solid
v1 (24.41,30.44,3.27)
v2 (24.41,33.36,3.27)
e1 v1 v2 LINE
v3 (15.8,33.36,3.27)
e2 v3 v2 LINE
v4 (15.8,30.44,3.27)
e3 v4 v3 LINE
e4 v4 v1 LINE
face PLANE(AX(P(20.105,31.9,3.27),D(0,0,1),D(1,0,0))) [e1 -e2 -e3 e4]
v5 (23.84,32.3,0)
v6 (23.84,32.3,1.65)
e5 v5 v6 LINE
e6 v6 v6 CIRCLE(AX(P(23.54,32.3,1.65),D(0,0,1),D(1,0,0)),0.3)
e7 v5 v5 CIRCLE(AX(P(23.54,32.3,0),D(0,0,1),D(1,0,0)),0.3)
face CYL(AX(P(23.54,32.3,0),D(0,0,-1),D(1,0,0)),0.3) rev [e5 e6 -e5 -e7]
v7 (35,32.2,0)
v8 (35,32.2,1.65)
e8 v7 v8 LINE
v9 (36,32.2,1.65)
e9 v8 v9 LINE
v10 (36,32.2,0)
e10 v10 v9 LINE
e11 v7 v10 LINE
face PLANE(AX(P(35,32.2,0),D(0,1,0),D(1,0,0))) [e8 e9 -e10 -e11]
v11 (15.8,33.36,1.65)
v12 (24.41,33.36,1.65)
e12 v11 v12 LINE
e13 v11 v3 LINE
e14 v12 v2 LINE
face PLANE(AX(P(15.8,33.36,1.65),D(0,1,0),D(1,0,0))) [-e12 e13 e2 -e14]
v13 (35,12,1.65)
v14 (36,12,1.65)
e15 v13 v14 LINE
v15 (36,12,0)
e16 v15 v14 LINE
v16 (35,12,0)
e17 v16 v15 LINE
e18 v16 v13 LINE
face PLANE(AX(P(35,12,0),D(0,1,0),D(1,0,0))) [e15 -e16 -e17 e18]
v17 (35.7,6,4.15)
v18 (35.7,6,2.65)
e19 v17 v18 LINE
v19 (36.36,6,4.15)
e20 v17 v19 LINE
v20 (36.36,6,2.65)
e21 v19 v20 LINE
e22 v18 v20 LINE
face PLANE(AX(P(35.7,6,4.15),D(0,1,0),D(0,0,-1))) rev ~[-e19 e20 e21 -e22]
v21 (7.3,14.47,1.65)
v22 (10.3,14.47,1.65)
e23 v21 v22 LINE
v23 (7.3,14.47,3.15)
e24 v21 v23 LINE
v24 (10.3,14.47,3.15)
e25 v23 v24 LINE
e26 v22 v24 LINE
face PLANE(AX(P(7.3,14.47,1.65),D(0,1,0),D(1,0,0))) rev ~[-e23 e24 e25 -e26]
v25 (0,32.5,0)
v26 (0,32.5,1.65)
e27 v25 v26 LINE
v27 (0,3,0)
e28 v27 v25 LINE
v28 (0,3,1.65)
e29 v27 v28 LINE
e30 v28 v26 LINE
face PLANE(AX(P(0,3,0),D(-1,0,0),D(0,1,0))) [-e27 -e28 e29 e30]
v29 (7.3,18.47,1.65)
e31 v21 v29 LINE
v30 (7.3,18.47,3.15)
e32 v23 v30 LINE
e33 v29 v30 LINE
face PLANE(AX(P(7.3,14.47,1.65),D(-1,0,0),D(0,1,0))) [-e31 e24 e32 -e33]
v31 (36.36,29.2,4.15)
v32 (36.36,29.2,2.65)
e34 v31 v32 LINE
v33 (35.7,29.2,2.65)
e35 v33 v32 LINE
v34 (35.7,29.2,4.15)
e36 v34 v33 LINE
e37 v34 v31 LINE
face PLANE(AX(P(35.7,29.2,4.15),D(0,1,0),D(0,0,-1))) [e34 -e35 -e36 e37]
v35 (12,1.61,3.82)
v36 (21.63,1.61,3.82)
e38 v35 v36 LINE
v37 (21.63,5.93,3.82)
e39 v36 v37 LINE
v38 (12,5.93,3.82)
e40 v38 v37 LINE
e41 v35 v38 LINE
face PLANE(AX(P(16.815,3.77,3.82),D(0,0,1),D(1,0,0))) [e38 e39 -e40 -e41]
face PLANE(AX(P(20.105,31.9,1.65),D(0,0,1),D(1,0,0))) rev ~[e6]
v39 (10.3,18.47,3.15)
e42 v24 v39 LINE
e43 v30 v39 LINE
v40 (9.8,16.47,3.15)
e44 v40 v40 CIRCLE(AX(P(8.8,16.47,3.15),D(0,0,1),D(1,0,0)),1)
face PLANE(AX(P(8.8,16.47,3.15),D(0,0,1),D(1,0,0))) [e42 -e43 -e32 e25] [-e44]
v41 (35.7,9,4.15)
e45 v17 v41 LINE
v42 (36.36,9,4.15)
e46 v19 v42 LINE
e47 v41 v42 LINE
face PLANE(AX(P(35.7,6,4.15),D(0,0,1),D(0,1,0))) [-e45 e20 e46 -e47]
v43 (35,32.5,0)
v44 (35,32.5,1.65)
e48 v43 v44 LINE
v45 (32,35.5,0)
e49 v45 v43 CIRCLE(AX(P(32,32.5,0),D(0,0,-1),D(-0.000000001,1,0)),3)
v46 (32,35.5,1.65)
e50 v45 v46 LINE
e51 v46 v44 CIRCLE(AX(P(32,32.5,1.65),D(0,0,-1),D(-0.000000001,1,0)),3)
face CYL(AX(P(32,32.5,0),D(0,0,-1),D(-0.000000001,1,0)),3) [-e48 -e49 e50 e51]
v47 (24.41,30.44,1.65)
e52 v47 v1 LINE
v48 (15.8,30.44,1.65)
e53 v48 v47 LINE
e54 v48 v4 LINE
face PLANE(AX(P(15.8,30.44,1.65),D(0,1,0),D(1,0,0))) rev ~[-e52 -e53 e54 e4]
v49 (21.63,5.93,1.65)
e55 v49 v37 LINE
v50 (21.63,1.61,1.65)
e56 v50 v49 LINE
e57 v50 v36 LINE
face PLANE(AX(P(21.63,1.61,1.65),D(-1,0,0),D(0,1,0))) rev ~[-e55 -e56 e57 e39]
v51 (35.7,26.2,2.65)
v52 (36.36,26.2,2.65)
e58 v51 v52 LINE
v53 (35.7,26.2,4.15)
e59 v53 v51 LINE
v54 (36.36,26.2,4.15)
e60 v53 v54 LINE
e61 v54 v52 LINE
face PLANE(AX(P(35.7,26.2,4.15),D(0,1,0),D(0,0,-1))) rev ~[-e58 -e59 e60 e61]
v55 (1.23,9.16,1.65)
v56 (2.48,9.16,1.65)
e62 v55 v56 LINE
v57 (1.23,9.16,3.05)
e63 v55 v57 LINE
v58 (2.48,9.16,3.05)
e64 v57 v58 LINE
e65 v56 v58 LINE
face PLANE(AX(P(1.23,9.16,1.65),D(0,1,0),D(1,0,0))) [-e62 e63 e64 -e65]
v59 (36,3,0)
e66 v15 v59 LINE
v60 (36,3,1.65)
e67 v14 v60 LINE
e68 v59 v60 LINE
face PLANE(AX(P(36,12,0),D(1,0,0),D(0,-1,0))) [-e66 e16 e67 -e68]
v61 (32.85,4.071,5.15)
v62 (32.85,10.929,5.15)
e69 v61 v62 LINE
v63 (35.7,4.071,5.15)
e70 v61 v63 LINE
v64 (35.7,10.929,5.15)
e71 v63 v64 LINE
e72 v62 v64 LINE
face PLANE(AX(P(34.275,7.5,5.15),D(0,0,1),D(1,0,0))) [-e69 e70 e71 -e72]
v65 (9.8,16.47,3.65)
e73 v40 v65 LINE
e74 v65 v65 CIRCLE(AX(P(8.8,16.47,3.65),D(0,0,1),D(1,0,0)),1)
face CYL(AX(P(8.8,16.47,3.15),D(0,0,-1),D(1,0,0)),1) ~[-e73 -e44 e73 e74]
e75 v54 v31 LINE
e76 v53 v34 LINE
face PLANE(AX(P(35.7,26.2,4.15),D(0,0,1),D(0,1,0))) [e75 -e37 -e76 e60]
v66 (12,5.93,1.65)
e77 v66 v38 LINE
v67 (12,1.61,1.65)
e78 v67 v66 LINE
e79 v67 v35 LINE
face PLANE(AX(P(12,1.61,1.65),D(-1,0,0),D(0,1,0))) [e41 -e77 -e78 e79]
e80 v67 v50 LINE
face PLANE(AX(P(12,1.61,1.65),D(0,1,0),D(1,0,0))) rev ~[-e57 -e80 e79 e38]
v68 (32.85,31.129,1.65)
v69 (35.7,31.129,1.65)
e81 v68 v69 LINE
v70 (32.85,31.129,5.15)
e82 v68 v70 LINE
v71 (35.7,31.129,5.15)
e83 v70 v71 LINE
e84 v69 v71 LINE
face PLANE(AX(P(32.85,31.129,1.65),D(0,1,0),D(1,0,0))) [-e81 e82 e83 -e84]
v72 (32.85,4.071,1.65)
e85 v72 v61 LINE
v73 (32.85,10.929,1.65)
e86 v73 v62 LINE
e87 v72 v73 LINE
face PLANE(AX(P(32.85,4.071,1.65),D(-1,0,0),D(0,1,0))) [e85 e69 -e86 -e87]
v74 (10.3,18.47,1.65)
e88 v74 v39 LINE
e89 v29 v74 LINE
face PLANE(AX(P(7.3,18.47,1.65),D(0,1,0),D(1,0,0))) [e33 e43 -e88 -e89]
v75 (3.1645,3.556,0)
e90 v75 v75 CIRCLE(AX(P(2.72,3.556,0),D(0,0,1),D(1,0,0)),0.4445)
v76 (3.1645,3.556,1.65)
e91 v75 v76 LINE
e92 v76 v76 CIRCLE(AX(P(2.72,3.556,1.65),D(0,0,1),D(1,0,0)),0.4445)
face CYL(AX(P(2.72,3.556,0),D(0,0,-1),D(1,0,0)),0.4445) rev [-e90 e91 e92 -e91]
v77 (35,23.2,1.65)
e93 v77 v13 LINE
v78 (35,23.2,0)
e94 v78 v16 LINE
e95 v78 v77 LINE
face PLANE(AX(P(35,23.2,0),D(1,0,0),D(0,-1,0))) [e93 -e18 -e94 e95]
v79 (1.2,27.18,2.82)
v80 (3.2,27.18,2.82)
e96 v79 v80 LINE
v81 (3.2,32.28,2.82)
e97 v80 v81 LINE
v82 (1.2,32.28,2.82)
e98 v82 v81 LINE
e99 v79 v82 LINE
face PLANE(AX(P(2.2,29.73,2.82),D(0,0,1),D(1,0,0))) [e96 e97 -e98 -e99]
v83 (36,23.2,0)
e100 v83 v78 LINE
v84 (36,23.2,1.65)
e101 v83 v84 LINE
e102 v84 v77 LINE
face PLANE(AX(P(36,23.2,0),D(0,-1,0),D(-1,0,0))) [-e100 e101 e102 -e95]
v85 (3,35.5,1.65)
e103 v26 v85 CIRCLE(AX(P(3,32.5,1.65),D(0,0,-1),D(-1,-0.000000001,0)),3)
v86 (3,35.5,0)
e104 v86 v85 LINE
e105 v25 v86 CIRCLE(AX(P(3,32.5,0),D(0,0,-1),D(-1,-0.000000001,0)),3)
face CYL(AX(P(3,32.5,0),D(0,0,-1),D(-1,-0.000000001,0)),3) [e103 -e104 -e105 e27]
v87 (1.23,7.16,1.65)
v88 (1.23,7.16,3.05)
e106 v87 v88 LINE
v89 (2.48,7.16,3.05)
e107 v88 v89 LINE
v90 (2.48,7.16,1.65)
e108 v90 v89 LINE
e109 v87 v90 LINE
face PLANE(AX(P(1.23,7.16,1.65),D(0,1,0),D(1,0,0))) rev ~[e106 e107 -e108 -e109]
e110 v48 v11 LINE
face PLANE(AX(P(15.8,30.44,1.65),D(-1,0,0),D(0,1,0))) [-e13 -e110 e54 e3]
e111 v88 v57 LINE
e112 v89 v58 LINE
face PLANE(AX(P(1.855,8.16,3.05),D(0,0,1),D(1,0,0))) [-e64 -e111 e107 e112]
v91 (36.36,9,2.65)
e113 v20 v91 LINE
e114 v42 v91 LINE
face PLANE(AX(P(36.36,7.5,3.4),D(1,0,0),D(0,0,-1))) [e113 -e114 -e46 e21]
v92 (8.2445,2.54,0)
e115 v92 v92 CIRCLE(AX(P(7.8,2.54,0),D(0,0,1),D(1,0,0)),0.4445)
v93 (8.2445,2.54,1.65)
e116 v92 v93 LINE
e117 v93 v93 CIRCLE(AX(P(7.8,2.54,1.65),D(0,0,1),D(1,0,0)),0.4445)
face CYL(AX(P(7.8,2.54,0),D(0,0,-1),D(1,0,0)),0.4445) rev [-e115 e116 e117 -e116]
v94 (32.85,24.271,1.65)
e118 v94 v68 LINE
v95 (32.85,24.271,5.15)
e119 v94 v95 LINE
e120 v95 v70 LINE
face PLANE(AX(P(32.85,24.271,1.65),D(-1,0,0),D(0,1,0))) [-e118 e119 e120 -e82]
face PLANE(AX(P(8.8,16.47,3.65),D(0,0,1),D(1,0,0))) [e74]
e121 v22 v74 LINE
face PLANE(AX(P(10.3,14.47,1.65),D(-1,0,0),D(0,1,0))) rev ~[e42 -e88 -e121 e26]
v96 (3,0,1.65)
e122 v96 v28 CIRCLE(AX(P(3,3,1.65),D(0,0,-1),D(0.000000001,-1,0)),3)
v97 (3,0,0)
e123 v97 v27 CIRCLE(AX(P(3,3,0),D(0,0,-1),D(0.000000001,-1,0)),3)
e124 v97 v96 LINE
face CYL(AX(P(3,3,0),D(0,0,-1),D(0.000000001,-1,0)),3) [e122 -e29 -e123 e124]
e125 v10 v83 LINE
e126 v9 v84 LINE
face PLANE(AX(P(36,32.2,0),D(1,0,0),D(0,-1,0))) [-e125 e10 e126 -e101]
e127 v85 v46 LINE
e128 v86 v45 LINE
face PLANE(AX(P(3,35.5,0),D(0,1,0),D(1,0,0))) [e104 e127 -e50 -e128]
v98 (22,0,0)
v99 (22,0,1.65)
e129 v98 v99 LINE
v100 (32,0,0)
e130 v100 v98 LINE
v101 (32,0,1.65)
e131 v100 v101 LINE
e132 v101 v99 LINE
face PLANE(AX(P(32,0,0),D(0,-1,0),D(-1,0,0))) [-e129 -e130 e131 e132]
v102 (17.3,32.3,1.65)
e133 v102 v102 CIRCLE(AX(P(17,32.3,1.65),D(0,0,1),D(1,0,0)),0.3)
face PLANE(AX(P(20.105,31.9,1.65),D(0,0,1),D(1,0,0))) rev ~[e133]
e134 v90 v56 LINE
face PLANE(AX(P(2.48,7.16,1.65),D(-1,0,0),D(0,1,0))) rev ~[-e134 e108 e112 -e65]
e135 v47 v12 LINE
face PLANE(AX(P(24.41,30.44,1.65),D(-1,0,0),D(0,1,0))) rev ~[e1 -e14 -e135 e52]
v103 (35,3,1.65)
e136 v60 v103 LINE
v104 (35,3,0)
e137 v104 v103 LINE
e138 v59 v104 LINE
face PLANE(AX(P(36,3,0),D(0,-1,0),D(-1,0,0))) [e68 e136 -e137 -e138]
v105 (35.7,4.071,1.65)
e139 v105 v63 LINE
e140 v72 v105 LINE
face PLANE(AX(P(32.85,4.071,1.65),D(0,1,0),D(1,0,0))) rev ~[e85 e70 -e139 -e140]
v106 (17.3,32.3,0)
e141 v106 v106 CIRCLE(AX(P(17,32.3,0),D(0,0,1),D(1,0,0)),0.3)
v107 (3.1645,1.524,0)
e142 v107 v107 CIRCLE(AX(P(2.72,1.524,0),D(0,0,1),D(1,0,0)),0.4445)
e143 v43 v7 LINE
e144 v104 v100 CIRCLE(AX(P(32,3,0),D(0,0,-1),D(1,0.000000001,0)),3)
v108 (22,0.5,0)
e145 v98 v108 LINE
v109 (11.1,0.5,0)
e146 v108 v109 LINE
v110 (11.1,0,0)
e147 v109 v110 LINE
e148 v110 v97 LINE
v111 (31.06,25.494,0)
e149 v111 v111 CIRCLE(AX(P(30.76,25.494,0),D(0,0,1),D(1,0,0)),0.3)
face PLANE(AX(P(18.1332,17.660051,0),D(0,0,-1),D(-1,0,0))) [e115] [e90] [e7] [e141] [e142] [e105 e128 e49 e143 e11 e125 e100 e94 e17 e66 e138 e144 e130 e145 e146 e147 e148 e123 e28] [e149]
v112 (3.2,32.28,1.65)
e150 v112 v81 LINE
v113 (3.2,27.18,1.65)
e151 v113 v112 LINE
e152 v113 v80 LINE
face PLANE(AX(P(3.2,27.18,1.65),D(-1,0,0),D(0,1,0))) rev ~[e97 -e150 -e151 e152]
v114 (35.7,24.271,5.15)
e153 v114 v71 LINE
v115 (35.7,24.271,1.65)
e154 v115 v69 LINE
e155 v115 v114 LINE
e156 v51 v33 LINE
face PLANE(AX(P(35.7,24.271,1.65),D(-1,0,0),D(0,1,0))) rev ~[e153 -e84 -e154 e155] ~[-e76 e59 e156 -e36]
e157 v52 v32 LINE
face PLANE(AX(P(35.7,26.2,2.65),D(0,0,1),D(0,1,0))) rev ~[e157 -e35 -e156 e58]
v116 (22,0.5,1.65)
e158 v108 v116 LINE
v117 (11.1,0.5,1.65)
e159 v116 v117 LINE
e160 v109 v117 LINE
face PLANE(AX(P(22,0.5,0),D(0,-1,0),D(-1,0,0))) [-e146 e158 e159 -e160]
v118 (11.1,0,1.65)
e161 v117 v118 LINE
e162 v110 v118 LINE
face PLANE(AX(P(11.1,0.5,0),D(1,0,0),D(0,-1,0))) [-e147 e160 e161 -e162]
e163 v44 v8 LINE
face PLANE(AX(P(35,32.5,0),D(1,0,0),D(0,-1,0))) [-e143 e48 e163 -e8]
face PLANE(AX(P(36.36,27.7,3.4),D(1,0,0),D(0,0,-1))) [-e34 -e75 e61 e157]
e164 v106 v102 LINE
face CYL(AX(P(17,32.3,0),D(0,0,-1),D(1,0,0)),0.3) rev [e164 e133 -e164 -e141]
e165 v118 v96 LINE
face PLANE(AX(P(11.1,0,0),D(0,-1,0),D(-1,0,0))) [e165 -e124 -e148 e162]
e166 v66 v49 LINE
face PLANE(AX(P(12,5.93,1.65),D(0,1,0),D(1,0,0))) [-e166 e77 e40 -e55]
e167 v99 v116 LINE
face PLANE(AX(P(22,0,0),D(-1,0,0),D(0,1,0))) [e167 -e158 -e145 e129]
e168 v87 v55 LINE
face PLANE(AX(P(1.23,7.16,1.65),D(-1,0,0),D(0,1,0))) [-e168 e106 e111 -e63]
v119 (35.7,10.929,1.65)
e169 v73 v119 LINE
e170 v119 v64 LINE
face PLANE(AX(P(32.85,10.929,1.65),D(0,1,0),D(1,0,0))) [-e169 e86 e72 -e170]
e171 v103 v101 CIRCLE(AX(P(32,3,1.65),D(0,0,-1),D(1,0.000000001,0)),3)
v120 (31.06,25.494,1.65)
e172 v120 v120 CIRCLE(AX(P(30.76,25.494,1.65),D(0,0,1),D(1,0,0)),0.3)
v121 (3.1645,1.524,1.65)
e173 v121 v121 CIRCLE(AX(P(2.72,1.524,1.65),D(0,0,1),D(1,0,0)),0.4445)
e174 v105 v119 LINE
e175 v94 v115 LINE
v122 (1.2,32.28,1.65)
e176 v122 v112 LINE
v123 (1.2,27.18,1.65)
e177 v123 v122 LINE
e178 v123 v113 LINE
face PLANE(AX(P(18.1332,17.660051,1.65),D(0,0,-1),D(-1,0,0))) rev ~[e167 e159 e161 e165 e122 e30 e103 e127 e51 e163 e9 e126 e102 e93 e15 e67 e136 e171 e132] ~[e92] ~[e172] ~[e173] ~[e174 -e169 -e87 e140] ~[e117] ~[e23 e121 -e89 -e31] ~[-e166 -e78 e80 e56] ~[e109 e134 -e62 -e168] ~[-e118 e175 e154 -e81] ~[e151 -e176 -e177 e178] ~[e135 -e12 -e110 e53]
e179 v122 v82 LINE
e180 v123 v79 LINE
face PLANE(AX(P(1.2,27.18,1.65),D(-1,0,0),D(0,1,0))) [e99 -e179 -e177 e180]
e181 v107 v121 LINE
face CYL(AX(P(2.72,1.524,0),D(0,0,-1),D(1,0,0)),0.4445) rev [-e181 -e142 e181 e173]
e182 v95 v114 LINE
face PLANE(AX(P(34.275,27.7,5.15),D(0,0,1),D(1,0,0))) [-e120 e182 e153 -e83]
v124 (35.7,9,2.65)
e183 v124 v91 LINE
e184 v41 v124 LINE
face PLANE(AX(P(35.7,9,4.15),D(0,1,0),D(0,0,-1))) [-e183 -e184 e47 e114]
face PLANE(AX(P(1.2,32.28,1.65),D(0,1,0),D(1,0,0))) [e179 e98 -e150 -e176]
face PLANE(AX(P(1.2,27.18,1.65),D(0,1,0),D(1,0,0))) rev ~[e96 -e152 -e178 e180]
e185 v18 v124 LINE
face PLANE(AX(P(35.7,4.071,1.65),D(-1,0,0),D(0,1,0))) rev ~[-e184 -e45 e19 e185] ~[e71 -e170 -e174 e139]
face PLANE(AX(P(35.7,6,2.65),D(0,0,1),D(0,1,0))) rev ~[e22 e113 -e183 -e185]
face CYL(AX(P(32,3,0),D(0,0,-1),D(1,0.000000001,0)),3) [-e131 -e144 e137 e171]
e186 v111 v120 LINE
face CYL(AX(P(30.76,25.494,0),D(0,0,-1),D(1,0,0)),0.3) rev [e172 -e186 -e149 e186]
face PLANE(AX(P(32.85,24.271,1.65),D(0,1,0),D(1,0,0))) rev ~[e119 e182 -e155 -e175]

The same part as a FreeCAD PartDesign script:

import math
import FreeCAD as App
import Part
import Sketcher
Q = App.Units.Quantity

doc = App.newDocument("Part")
params = doc.addObject("Spreadsheet::Sheet", "Params")
for row, (alias, value) in enumerate([
    ("sketch1_radius", "3 mm"),
    ("sketch1_diameter", "0.6 mm"),
    ("sketch1_width", "29 mm"),
    ("sketch1_width2", "10 mm"),
    ("sketch1_width3", "1 mm"),
    ("pad1_length", "1.65 mm"),
    ("sketch2_width", "2.85 mm"),
    ("pad2_length", "3.5 mm"),
    ("sketch3_width", "3 mm"),
    ("sketch3_height", "1.5 mm"),
    ("pad3_length", "0.66 mm"),
    ("sketch4_height", "2 mm"),
    ("sketch4_width", "1.25 mm"),
    ("pad4_length", "1.4 mm"),
    ("sketch5_width", "2 mm"),
    ("sketch5_height", "5.1 mm"),
    ("pad5_length", "1.17 mm"),
    ("sketch6_width", "8.61 mm"),
    ("sketch6_height", "2.92 mm"),
    ("pad6_length", "1.62 mm"),
    ("sketch7_width", "9.63 mm"),
    ("sketch7_height", "4.32 mm"),
    ("pad7_length", "2.17 mm"),
    ("sketch8_width", "3 mm"),
    ("sketch8_height", "4 mm"),
    ("pad8_length", "1.5 mm"),
    ("sketch9_diameter", "2 mm"),
    ("pad9_length", "0.5 mm"),
], start=1):
    params.set(f"A{row}", alias)
    params.set(f"B{row}", "=" + value)
    params.setAlias(f"B{row}", alias)

body = doc.addObject("PartDesign::Body", "Body")

sketch1 = body.newObject("Sketcher::SketchObject", "Sketch")
sketch1.AttachmentSupport = (doc.getObject("XY_Plane"), [""])
sketch1.MapMode = "FlatFace"
sketch1.addGeometry(Part.LineSegment(App.Vector(32, 35.5, 0), App.Vector(3, 35.5, 0)), False)
sketch1.addGeometry(Part.ArcOfCircle(Part.Circle(App.Vector(3, 32.5, 0), App.Vector(0, 0, 1), 3), math.radians(90), math.radians(180)), False)
sketch1.addGeometry(Part.LineSegment(App.Vector(0, 32.5, 0), App.Vector(0, 3, 0)), False)
sketch1.addGeometry(Part.ArcOfCircle(Part.Circle(App.Vector(3, 3, 0), App.Vector(0, 0, 1), 3), math.radians(180), math.radians(270)), False)
sketch1.addGeometry(Part.LineSegment(App.Vector(3, 0, 0), App.Vector(11.1, 0, 0)), False)
sketch1.addGeometry(Part.LineSegment(App.Vector(11.1, 0, 0), App.Vector(11.1, 0.5, 0)), False)
sketch1.addGeometry(Part.LineSegment(App.Vector(11.1, 0.5, 0), App.Vector(22, 0.5, 0)), False)
sketch1.addGeometry(Part.LineSegment(App.Vector(22, 0.5, 0), App.Vector(22, 0, 0)), False)
sketch1.addGeometry(Part.LineSegment(App.Vector(22, 0, 0), App.Vector(32, 0, 0)), False)
sketch1.addGeometry(Part.ArcOfCircle(Part.Circle(App.Vector(32, 3, 0), App.Vector(0, 0, 1), 3), math.radians(-90), math.radians(0)), False)
sketch1.addGeometry(Part.LineSegment(App.Vector(35, 3, 0), App.Vector(36, 3, 0)), False)
sketch1.addGeometry(Part.LineSegment(App.Vector(36, 3, 0), App.Vector(36, 12, 0)), False)
sketch1.addGeometry(Part.LineSegment(App.Vector(36, 12, 0), App.Vector(35, 12, 0)), False)
sketch1.addGeometry(Part.LineSegment(App.Vector(35, 12, 0), App.Vector(35, 23.2, 0)), False)
sketch1.addGeometry(Part.LineSegment(App.Vector(35, 23.2, 0), App.Vector(36, 23.2, 0)), False)
sketch1.addGeometry(Part.LineSegment(App.Vector(36, 23.2, 0), App.Vector(36, 32.2, 0)), False)
sketch1.addGeometry(Part.LineSegment(App.Vector(36, 32.2, 0), App.Vector(35, 32.2, 0)), False)
sketch1.addGeometry(Part.LineSegment(App.Vector(35, 32.2, 0), App.Vector(35, 32.5, 0)), False)
sketch1.addGeometry(Part.ArcOfCircle(Part.Circle(App.Vector(32, 32.5, 0), App.Vector(0, 0, 1), 3), math.radians(0), math.radians(90)), False)
sketch1.addGeometry(Part.Circle(App.Vector(7.8, 2.54, 0), App.Vector(0, 0, 1), 0.44), False)
sketch1.addGeometry(Part.Circle(App.Vector(2.72, 1.52, 0), App.Vector(0, 0, 1), 0.44), False)
sketch1.addGeometry(Part.Circle(App.Vector(2.72, 3.56, 0), App.Vector(0, 0, 1), 0.44), False)
sketch1.addGeometry(Part.Circle(App.Vector(30.76, 25.49, 0), App.Vector(0, 0, 1), 0.3), False)
sketch1.addGeometry(Part.Circle(App.Vector(23.54, 32.3, 0), App.Vector(0, 0, 1), 0.3), False)
sketch1.addGeometry(Part.Circle(App.Vector(17, 32.3, 0), App.Vector(0, 0, 1), 0.3), False)
sketch1.addConstraint(Sketcher.Constraint("Tangent", 0, 2, 1, 1))
sketch1.addConstraint(Sketcher.Constraint("Tangent", 1, 2, 2, 1))
sketch1.addConstraint(Sketcher.Constraint("Tangent", 2, 2, 3, 1))
sketch1.addConstraint(Sketcher.Constraint("Tangent", 3, 2, 4, 1))
sketch1.addConstraint(Sketcher.Constraint("Coincident", 4, 2, 5, 1))
sketch1.addConstraint(Sketcher.Constraint("Coincident", 5, 2, 6, 1))
sketch1.addConstraint(Sketcher.Constraint("Coincident", 6, 2, 7, 1))
sketch1.addConstraint(Sketcher.Constraint("Coincident", 7, 2, 8, 1))
sketch1.addConstraint(Sketcher.Constraint("Tangent", 8, 2, 9, 1))
sketch1.addConstraint(Sketcher.Constraint("Coincident", 9, 2, 10, 1))
sketch1.addConstraint(Sketcher.Constraint("Coincident", 10, 2, 11, 1))
sketch1.addConstraint(Sketcher.Constraint("Coincident", 11, 2, 12, 1))
sketch1.addConstraint(Sketcher.Constraint("Coincident", 12, 2, 13, 1))
sketch1.addConstraint(Sketcher.Constraint("Coincident", 13, 2, 14, 1))
sketch1.addConstraint(Sketcher.Constraint("Coincident", 14, 2, 15, 1))
sketch1.addConstraint(Sketcher.Constraint("Coincident", 15, 2, 16, 1))
sketch1.addConstraint(Sketcher.Constraint("Coincident", 16, 2, 17, 1))
sketch1.addConstraint(Sketcher.Constraint("Tangent", 17, 2, 18, 1))
sketch1.addConstraint(Sketcher.Constraint("Tangent", 18, 2, 0, 1))
sketch1.addConstraint(Sketcher.Constraint("Horizontal", 0))
sketch1.addConstraint(Sketcher.Constraint("Vertical", 2))
sketch1.addConstraint(Sketcher.Constraint("Horizontal", 4))
sketch1.addConstraint(Sketcher.Constraint("Vertical", 5))
sketch1.addConstraint(Sketcher.Constraint("Horizontal", 6))
sketch1.addConstraint(Sketcher.Constraint("Vertical", 7))
sketch1.addConstraint(Sketcher.Constraint("Horizontal", 8))
sketch1.addConstraint(Sketcher.Constraint("Horizontal", 10))
sketch1.addConstraint(Sketcher.Constraint("Vertical", 11))
sketch1.addConstraint(Sketcher.Constraint("Horizontal", 12))
sketch1.addConstraint(Sketcher.Constraint("Vertical", 13))
sketch1.addConstraint(Sketcher.Constraint("Horizontal", 14))
sketch1.addConstraint(Sketcher.Constraint("Vertical", 15))
sketch1.addConstraint(Sketcher.Constraint("Horizontal", 16))
sketch1.addConstraint(Sketcher.Constraint("Vertical", 17))
sketch1.addConstraint(Sketcher.Constraint("Equal", 1, 3))
sketch1.addConstraint(Sketcher.Constraint("Equal", 3, 9))
sketch1.addConstraint(Sketcher.Constraint("Equal", 9, 18))
sketch1.addConstraint(Sketcher.Constraint("Equal", 19, 20))
sketch1.addConstraint(Sketcher.Constraint("Equal", 20, 21))
sketch1.addConstraint(Sketcher.Constraint("Equal", 22, 23))
sketch1.addConstraint(Sketcher.Constraint("Equal", 23, 24))
sketch1.addConstraint(Sketcher.Constraint("PointOnObject", 1, 2, -2))
sketch1.addConstraint(Sketcher.Constraint("PointOnObject", 3, 2, -1))
sketch1.addConstraint(Sketcher.Constraint("PointOnObject", 7, 2, -1))
sketch1.addConstraint(Sketcher.Constraint("Horizontal", 23, 3, 24, 3))
sketch1.addConstraint(Sketcher.Constraint("Horizontal", 2, 2, 9, 2))
sketch1.addConstraint(Sketcher.Constraint("Vertical", 9, 3, 18, 3))
sketch1.addConstraint(Sketcher.Constraint("Vertical", 20, 3, 21, 3))
sketch1.addConstraint(Sketcher.Constraint("Vertical", 9, 2, 12, 2))
sketch1.addConstraint(Sketcher.Constraint("Vertical", 11, 2, 14, 2))
sketch1.addConstraint(Sketcher.Constraint("Equal", 11, 15))
sketch1.addConstraint(Sketcher.Constraint("Radius", 1, Q("3 mm")))
sketch1.addConstraint(Sketcher.Constraint("Diameter", 22, Q("0.6 mm")))
sketch1.addConstraint(Sketcher.Constraint("DistanceX", 0, 2, 0, 1, Q("29 mm")))
sketch1.addConstraint(Sketcher.Constraint("DistanceX", 8, 1, 8, 2, Q("10 mm")))
sketch1.addConstraint(Sketcher.Constraint("DistanceX", 10, 1, 10, 2, Q("1 mm")))
sketch1.addConstraint(Sketcher.Constraint("DistanceY", 11, 1, 11, 2, Q("9 mm")))
sketch1.addConstraint(Sketcher.Constraint("Diameter", 19, Q("0.889 mm")))
sketch1.addConstraint(Sketcher.Constraint("DistanceX", 4, 1, 4, 2, Q("8.1 mm")))
sketch1.addConstraint(Sketcher.Constraint("DistanceY", 2, 2, 2, 1, Q("29.5 mm")))
sketch1.addConstraint(Sketcher.Constraint("DistanceY", 5, 1, 5, 2, Q("0.5 mm")))
sketch1.addConstraint(Sketcher.Constraint("DistanceY", 13, 1, 13, 2, Q("11.2 mm")))
sketch1.addConstraint(Sketcher.Constraint("DistanceX", -1, 1, 24, 3, Q("17 mm")))
sketch1.addConstraint(Sketcher.Constraint("DistanceX", -1, 1, 19, 3, Q("7.8 mm")))
sketch1.addConstraint(Sketcher.Constraint("DistanceY", -1, 1, 23, 3, Q("32.3 mm")))
sketch1.addConstraint(Sketcher.Constraint("DistanceY", -1, 1, 19, 3, Q("2.54 mm")))
sketch1.addConstraint(Sketcher.Constraint("DistanceX", -1, 1, 20, 3, Q("2.72 mm")))
sketch1.addConstraint(Sketcher.Constraint("DistanceX", -1, 1, 22, 3, Q("30.76 mm")))
sketch1.addConstraint(Sketcher.Constraint("DistanceX", -1, 1, 23, 3, Q("23.54 mm")))
sketch1.addConstraint(Sketcher.Constraint("DistanceY", -1, 1, 20, 3, Q("1.524 mm")))
sketch1.addConstraint(Sketcher.Constraint("DistanceY", -1, 1, 21, 3, Q("3.556 mm")))
sketch1.addConstraint(Sketcher.Constraint("DistanceY", -1, 1, 22, 3, Q("25.494 mm")))
sketch1.setExpression("Constraints[51]", "Params.sketch1_radius")
sketch1.setExpression("Constraints[52]", "Params.sketch1_diameter")
sketch1.setExpression("Constraints[53]", "Params.sketch1_width")
sketch1.setExpression("Constraints[54]", "Params.sketch1_width2")
sketch1.setExpression("Constraints[55]", "Params.sketch1_width3")
pad1 = body.newObject("PartDesign::Pad", "Pad")
pad1.Profile = sketch1
pad1.setExpression("Length", "Params.pad1_length")

sketch2 = body.newObject("Sketcher::SketchObject", "Sketch001")
sketch2.AttachmentSupport = (doc.getObject("XY_Plane"), [""])
sketch2.MapMode = "FlatFace"
sketch2.AttachmentOffset = App.Placement(App.Vector(0, 0, 1.65), App.Rotation())
sketch2.addGeometry(Part.LineSegment(App.Vector(32.9, 31.1, 0), App.Vector(32.9, 24.3, 0)), False)
sketch2.addGeometry(Part.LineSegment(App.Vector(32.9, 24.3, 0), App.Vector(35.7, 24.3, 0)), False)
sketch2.addGeometry(Part.LineSegment(App.Vector(35.7, 24.3, 0), App.Vector(35.7, 31.1, 0)), False)
sketch2.addGeometry(Part.LineSegment(App.Vector(35.7, 31.1, 0), App.Vector(32.9, 31.1, 0)), False)
sketch2.addGeometry(Part.LineSegment(App.Vector(32.9, 10.9, 0), App.Vector(32.9, 4.1, 0)), False)
sketch2.addGeometry(Part.LineSegment(App.Vector(32.9, 4.1, 0), App.Vector(35.7, 4.1, 0)), False)
sketch2.addGeometry(Part.LineSegment(App.Vector(35.7, 4.1, 0), App.Vector(35.7, 10.9, 0)), False)
sketch2.addGeometry(Part.LineSegment(App.Vector(35.7, 10.9, 0), App.Vector(32.9, 10.9, 0)), False)
sketch2.addConstraint(Sketcher.Constraint("Coincident", 0, 2, 1, 1))
sketch2.addConstraint(Sketcher.Constraint("Coincident", 1, 2, 2, 1))
sketch2.addConstraint(Sketcher.Constraint("Coincident", 2, 2, 3, 1))
sketch2.addConstraint(Sketcher.Constraint("Coincident", 3, 2, 0, 1))
sketch2.addConstraint(Sketcher.Constraint("Coincident", 4, 2, 5, 1))
sketch2.addConstraint(Sketcher.Constraint("Coincident", 5, 2, 6, 1))
sketch2.addConstraint(Sketcher.Constraint("Coincident", 6, 2, 7, 1))
sketch2.addConstraint(Sketcher.Constraint("Coincident", 7, 2, 4, 1))
sketch2.addConstraint(Sketcher.Constraint("Vertical", 0))
sketch2.addConstraint(Sketcher.Constraint("Horizontal", 1))
sketch2.addConstraint(Sketcher.Constraint("Vertical", 2))
sketch2.addConstraint(Sketcher.Constraint("Horizontal", 3))
sketch2.addConstraint(Sketcher.Constraint("Vertical", 4))
sketch2.addConstraint(Sketcher.Constraint("Horizontal", 5))
sketch2.addConstraint(Sketcher.Constraint("Vertical", 6))
sketch2.addConstraint(Sketcher.Constraint("Horizontal", 7))
sketch2.addConstraint(Sketcher.Constraint("Vertical", 3, 2, 4, 2))
sketch2.addConstraint(Sketcher.Constraint("Vertical", 2, 2, 5, 2))
sketch2.addConstraint(Sketcher.Constraint("Equal", 2, 4))
sketch2.addConstraint(Sketcher.Constraint("DistanceX", 1, 1, 1, 2, Q("2.85 mm")))
sketch2.addConstraint(Sketcher.Constraint("DistanceX", -1, 1, 1, 2, Q("35.7 mm")))
sketch2.addConstraint(Sketcher.Constraint("DistanceY", 4, 2, 0, 2, Q("20.2 mm")))
sketch2.addConstraint(Sketcher.Constraint("DistanceY", 0, 2, 0, 1, Q("6.858 mm")))
sketch2.addConstraint(Sketcher.Constraint("DistanceY", -1, 1, 0, 2, Q("24.271 mm")))
sketch2.setExpression("Constraints[19]", "Params.sketch2_width")
pad2 = body.newObject("PartDesign::Pad", "Pad001")
pad2.Profile = sketch2
pad2.setExpression("Length", "Params.pad2_length")

sketch3 = body.newObject("Sketcher::SketchObject", "Sketch002")
sketch3.AttachmentSupport = (doc.getObject("YZ_Plane"), [""])
sketch3.MapMode = "FlatFace"
sketch3.AttachmentOffset = App.Placement(App.Vector(0, 0, 35.7), App.Rotation())
sketch3.addGeometry(Part.LineSegment(App.Vector(29.2, 4.2, 0), App.Vector(26.2, 4.2, 0)), False)
sketch3.addGeometry(Part.LineSegment(App.Vector(26.2, 4.2, 0), App.Vector(26.2, 2.6, 0)), False)
sketch3.addGeometry(Part.LineSegment(App.Vector(26.2, 2.6, 0), App.Vector(29.2, 2.6, 0)), False)
sketch3.addGeometry(Part.LineSegment(App.Vector(29.2, 2.6, 0), App.Vector(29.2, 4.2, 0)), False)
sketch3.addGeometry(Part.LineSegment(App.Vector(9, 4.2, 0), App.Vector(6, 4.2, 0)), False)
sketch3.addGeometry(Part.LineSegment(App.Vector(6, 4.2, 0), App.Vector(6, 2.6, 0)), False)
sketch3.addGeometry(Part.LineSegment(App.Vector(6, 2.6, 0), App.Vector(9, 2.6, 0)), False)
sketch3.addGeometry(Part.LineSegment(App.Vector(9, 2.6, 0), App.Vector(9, 4.2, 0)), False)
sketch3.addConstraint(Sketcher.Constraint("Coincident", 0, 2, 1, 1))
sketch3.addConstraint(Sketcher.Constraint("Coincident", 1, 2, 2, 1))
sketch3.addConstraint(Sketcher.Constraint("Coincident", 2, 2, 3, 1))
sketch3.addConstraint(Sketcher.Constraint("Coincident", 3, 2, 0, 1))
sketch3.addConstraint(Sketcher.Constraint("Coincident", 4, 2, 5, 1))
sketch3.addConstraint(Sketcher.Constraint("Coincident", 5, 2, 6, 1))
sketch3.addConstraint(Sketcher.Constraint("Coincident", 6, 2, 7, 1))
sketch3.addConstraint(Sketcher.Constraint("Coincident", 7, 2, 4, 1))
sketch3.addConstraint(Sketcher.Constraint("Horizontal", 0))
sketch3.addConstraint(Sketcher.Constraint("Vertical", 1))
sketch3.addConstraint(Sketcher.Constraint("Horizontal", 2))
sketch3.addConstraint(Sketcher.Constraint("Vertical", 3))
sketch3.addConstraint(Sketcher.Constraint("Horizontal", 4))
sketch3.addConstraint(Sketcher.Constraint("Vertical", 5))
sketch3.addConstraint(Sketcher.Constraint("Horizontal", 6))
sketch3.addConstraint(Sketcher.Constraint("Vertical", 7))
sketch3.addConstraint(Sketcher.Constraint("Horizontal", 3, 2, 4, 2))
sketch3.addConstraint(Sketcher.Constraint("Horizontal", 2, 2, 5, 2))
sketch3.addConstraint(Sketcher.Constraint("Equal", 2, 4))
sketch3.addConstraint(Sketcher.Constraint("DistanceX", 0, 2, 0, 1, Q("3 mm")))
sketch3.addConstraint(Sketcher.Constraint("DistanceY", 1, 2, 1, 1, Q("1.5 mm")))
sketch3.addConstraint(Sketcher.Constraint("DistanceX", -1, 1, 4, 2, Q("6 mm")))
sketch3.addConstraint(Sketcher.Constraint("DistanceX", -1, 1, 0, 2, Q("26.2 mm")))
sketch3.addConstraint(Sketcher.Constraint("DistanceY", -1, 1, 0, 2, Q("4.15 mm")))
sketch3.setExpression("Constraints[19]", "Params.sketch3_width")
sketch3.setExpression("Constraints[20]", "Params.sketch3_height")
pad3 = body.newObject("PartDesign::Pad", "Pad002")
pad3.Profile = sketch3
pad3.setExpression("Length", "Params.pad3_length")

sketch4 = body.newObject("Sketcher::SketchObject", "Sketch003")
sketch4.AttachmentSupport = (doc.getObject("XY_Plane"), [""])
sketch4.MapMode = "FlatFace"
sketch4.AttachmentOffset = App.Placement(App.Vector(0, 0, 1.65), App.Rotation())
sketch4.addGeometry(Part.LineSegment(App.Vector(1.2, 9.2, 0), App.Vector(1.2, 7.2, 0)), False)
sketch4.addGeometry(Part.LineSegment(App.Vector(1.2, 7.2, 0), App.Vector(2.5, 7.2, 0)), False)
sketch4.addGeometry(Part.LineSegment(App.Vector(2.5, 7.2, 0), App.Vector(2.5, 9.2, 0)), False)
sketch4.addGeometry(Part.LineSegment(App.Vector(2.5, 9.2, 0), App.Vector(1.2, 9.2, 0)), False)
sketch4.addConstraint(Sketcher.Constraint("Coincident", 0, 2, 1, 1))
sketch4.addConstraint(Sketcher.Constraint("Coincident", 1, 2, 2, 1))
sketch4.addConstraint(Sketcher.Constraint("Coincident", 2, 2, 3, 1))
sketch4.addConstraint(Sketcher.Constraint("Coincident", 3, 2, 0, 1))
sketch4.addConstraint(Sketcher.Constraint("Vertical", 0))
sketch4.addConstraint(Sketcher.Constraint("Horizontal", 1))
sketch4.addConstraint(Sketcher.Constraint("Vertical", 2))
sketch4.addConstraint(Sketcher.Constraint("Horizontal", 3))
sketch4.addConstraint(Sketcher.Constraint("DistanceY", 0, 2, 0, 1, Q("2 mm")))
sketch4.addConstraint(Sketcher.Constraint("DistanceX", 1, 1, 1, 2, Q("1.25 mm")))
sketch4.addConstraint(Sketcher.Constraint("DistanceX", -1, 1, 0, 2, Q("1.23 mm")))
sketch4.addConstraint(Sketcher.Constraint("DistanceY", -1, 1, 0, 2, Q("7.16 mm")))
sketch4.setExpression("Constraints[8]", "Params.sketch4_height")
sketch4.setExpression("Constraints[9]", "Params.sketch4_width")
pad4 = body.newObject("PartDesign::Pad", "Pad003")
pad4.Profile = sketch4
pad4.setExpression("Length", "Params.pad4_length")

sketch5 = body.newObject("Sketcher::SketchObject", "Sketch004")
sketch5.AttachmentSupport = (doc.getObject("XY_Plane"), [""])
sketch5.MapMode = "FlatFace"
sketch5.AttachmentOffset = App.Placement(App.Vector(0, 0, 1.65), App.Rotation())
sketch5.addGeometry(Part.LineSegment(App.Vector(1.2, 32.3, 0), App.Vector(1.2, 27.2, 0)), False)
sketch5.addGeometry(Part.LineSegment(App.Vector(1.2, 27.2, 0), App.Vector(3.2, 27.2, 0)), False)
sketch5.addGeometry(Part.LineSegment(App.Vector(3.2, 27.2, 0), App.Vector(3.2, 32.3, 0)), False)
sketch5.addGeometry(Part.LineSegment(App.Vector(3.2, 32.3, 0), App.Vector(1.2, 32.3, 0)), False)
sketch5.addConstraint(Sketcher.Constraint("Coincident", 0, 2, 1, 1))
sketch5.addConstraint(Sketcher.Constraint("Coincident", 1, 2, 2, 1))
sketch5.addConstraint(Sketcher.Constraint("Coincident", 2, 2, 3, 1))
sketch5.addConstraint(Sketcher.Constraint("Coincident", 3, 2, 0, 1))
sketch5.addConstraint(Sketcher.Constraint("Vertical", 0))
sketch5.addConstraint(Sketcher.Constraint("Horizontal", 1))
sketch5.addConstraint(Sketcher.Constraint("Vertical", 2))
sketch5.addConstraint(Sketcher.Constraint("Horizontal", 3))
sketch5.addConstraint(Sketcher.Constraint("DistanceX", 1, 1, 1, 2, Q("2 mm")))
sketch5.addConstraint(Sketcher.Constraint("DistanceY", 0, 2, 0, 1, Q("5.1 mm")))
sketch5.addConstraint(Sketcher.Constraint("DistanceX", -1, 1, 0, 2, Q("1.2 mm")))
sketch5.addConstraint(Sketcher.Constraint("DistanceY", -1, 1, 0, 2, Q("27.18 mm")))
sketch5.setExpression("Constraints[8]", "Params.sketch5_width")
sketch5.setExpression("Constraints[9]", "Params.sketch5_height")
pad5 = body.newObject("PartDesign::Pad", "Pad004")
pad5.Profile = sketch5
pad5.setExpression("Length", "Params.pad5_length")

sketch6 = body.newObject("Sketcher::SketchObject", "Sketch005")
sketch6.AttachmentSupport = (doc.getObject("XY_Plane"), [""])
sketch6.MapMode = "FlatFace"
sketch6.AttachmentOffset = App.Placement(App.Vector(0, 0, 1.65), App.Rotation())
sketch6.addGeometry(Part.LineSegment(App.Vector(15.8, 33.4, 0), App.Vector(15.8, 30.4, 0)), False)
sketch6.addGeometry(Part.LineSegment(App.Vector(15.8, 30.4, 0), App.Vector(24.4, 30.4, 0)), False)
sketch6.addGeometry(Part.LineSegment(App.Vector(24.4, 30.4, 0), App.Vector(24.4, 33.4, 0)), False)
sketch6.addGeometry(Part.LineSegment(App.Vector(24.4, 33.4, 0), App.Vector(15.8, 33.4, 0)), False)
sketch6.addConstraint(Sketcher.Constraint("Coincident", 0, 2, 1, 1))
sketch6.addConstraint(Sketcher.Constraint("Coincident", 1, 2, 2, 1))
sketch6.addConstraint(Sketcher.Constraint("Coincident", 2, 2, 3, 1))
sketch6.addConstraint(Sketcher.Constraint("Coincident", 3, 2, 0, 1))
sketch6.addConstraint(Sketcher.Constraint("Vertical", 0))
sketch6.addConstraint(Sketcher.Constraint("Horizontal", 1))
sketch6.addConstraint(Sketcher.Constraint("Vertical", 2))
sketch6.addConstraint(Sketcher.Constraint("Horizontal", 3))
sketch6.addConstraint(Sketcher.Constraint("DistanceX", 1, 1, 1, 2, Q("8.61 mm")))
sketch6.addConstraint(Sketcher.Constraint("DistanceY", 0, 2, 0, 1, Q("2.92 mm")))
sketch6.addConstraint(Sketcher.Constraint("DistanceX", -1, 1, 0, 2, Q("15.8 mm")))
sketch6.addConstraint(Sketcher.Constraint("DistanceY", -1, 1, 0, 2, Q("30.44 mm")))
sketch6.setExpression("Constraints[8]", "Params.sketch6_width")
sketch6.setExpression("Constraints[9]", "Params.sketch6_height")
pad6 = body.newObject("PartDesign::Pad", "Pad005")
pad6.Profile = sketch6
pad6.setExpression("Length", "Params.pad6_length")

sketch7 = body.newObject("Sketcher::SketchObject", "Sketch006")
sketch7.AttachmentSupport = (doc.getObject("XY_Plane"), [""])
sketch7.MapMode = "FlatFace"
sketch7.AttachmentOffset = App.Placement(App.Vector(0, 0, 1.65), App.Rotation())
sketch7.addGeometry(Part.LineSegment(App.Vector(12, 5.9, 0), App.Vector(12, 1.6, 0)), False)
sketch7.addGeometry(Part.LineSegment(App.Vector(12, 1.6, 0), App.Vector(21.6, 1.6, 0)), False)
sketch7.addGeometry(Part.LineSegment(App.Vector(21.6, 1.6, 0), App.Vector(21.6, 5.9, 0)), False)
sketch7.addGeometry(Part.LineSegment(App.Vector(21.6, 5.9, 0), App.Vector(12, 5.9, 0)), False)
sketch7.addConstraint(Sketcher.Constraint("Coincident", 0, 2, 1, 1))
sketch7.addConstraint(Sketcher.Constraint("Coincident", 1, 2, 2, 1))
sketch7.addConstraint(Sketcher.Constraint("Coincident", 2, 2, 3, 1))
sketch7.addConstraint(Sketcher.Constraint("Coincident", 3, 2, 0, 1))
sketch7.addConstraint(Sketcher.Constraint("Vertical", 0))
sketch7.addConstraint(Sketcher.Constraint("Horizontal", 1))
sketch7.addConstraint(Sketcher.Constraint("Vertical", 2))
sketch7.addConstraint(Sketcher.Constraint("Horizontal", 3))
sketch7.addConstraint(Sketcher.Constraint("DistanceX", -1, 1, 0, 2, Q("12 mm")))
sketch7.addConstraint(Sketcher.Constraint("DistanceX", 1, 1, 1, 2, Q("9.63 mm")))
sketch7.addConstraint(Sketcher.Constraint("DistanceY", 0, 2, 0, 1, Q("4.32 mm")))
sketch7.addConstraint(Sketcher.Constraint("DistanceY", -1, 1, 0, 2, Q("1.61 mm")))
sketch7.setExpression("Constraints[9]", "Params.sketch7_width")
sketch7.setExpression("Constraints[10]", "Params.sketch7_height")
pad7 = body.newObject("PartDesign::Pad", "Pad006")
pad7.Profile = sketch7
pad7.setExpression("Length", "Params.pad7_length")

sketch8 = body.newObject("Sketcher::SketchObject", "Sketch007")
sketch8.AttachmentSupport = (doc.getObject("XY_Plane"), [""])
sketch8.MapMode = "FlatFace"
sketch8.AttachmentOffset = App.Placement(App.Vector(0, 0, 1.65), App.Rotation())
sketch8.addGeometry(Part.LineSegment(App.Vector(7.3, 18.5, 0), App.Vector(7.3, 14.5, 0)), False)
sketch8.addGeometry(Part.LineSegment(App.Vector(7.3, 14.5, 0), App.Vector(10.3, 14.5, 0)), False)
sketch8.addGeometry(Part.LineSegment(App.Vector(10.3, 14.5, 0), App.Vector(10.3, 18.5, 0)), False)
sketch8.addGeometry(Part.LineSegment(App.Vector(10.3, 18.5, 0), App.Vector(7.3, 18.5, 0)), False)
sketch8.addConstraint(Sketcher.Constraint("Coincident", 0, 2, 1, 1))
sketch8.addConstraint(Sketcher.Constraint("Coincident", 1, 2, 2, 1))
sketch8.addConstraint(Sketcher.Constraint("Coincident", 2, 2, 3, 1))
sketch8.addConstraint(Sketcher.Constraint("Coincident", 3, 2, 0, 1))
sketch8.addConstraint(Sketcher.Constraint("Vertical", 0))
sketch8.addConstraint(Sketcher.Constraint("Horizontal", 1))
sketch8.addConstraint(Sketcher.Constraint("Vertical", 2))
sketch8.addConstraint(Sketcher.Constraint("Horizontal", 3))
sketch8.addConstraint(Sketcher.Constraint("DistanceX", 1, 1, 1, 2, Q("3 mm")))
sketch8.addConstraint(Sketcher.Constraint("DistanceY", 0, 2, 0, 1, Q("4 mm")))
sketch8.addConstraint(Sketcher.Constraint("DistanceX", -1, 1, 0, 2, Q("7.3 mm")))
sketch8.addConstraint(Sketcher.Constraint("DistanceY", -1, 1, 0, 2, Q("14.47 mm")))
sketch8.setExpression("Constraints[8]", "Params.sketch8_width")
sketch8.setExpression("Constraints[9]", "Params.sketch8_height")
pad8 = body.newObject("PartDesign::Pad", "Pad007")
pad8.Profile = sketch8
pad8.setExpression("Length", "Params.pad8_length")

sketch9 = body.newObject("Sketcher::SketchObject", "Sketch008")
sketch9.AttachmentSupport = (doc.getObject("XY_Plane"), [""])
sketch9.MapMode = "FlatFace"
sketch9.AttachmentOffset = App.Placement(App.Vector(0, 0, 3.15), App.Rotation())
sketch9.addGeometry(Part.Circle(App.Vector(8.8, 16.5, 0), App.Vector(0, 0, 1), 1), False)
sketch9.addConstraint(Sketcher.Constraint("Diameter", 0, Q("2 mm")))
sketch9.addConstraint(Sketcher.Constraint("DistanceX", -1, 1, 0, 3, Q("8.8 mm")))
sketch9.addConstraint(Sketcher.Constraint("DistanceY", -1, 1, 0, 3, Q("16.47 mm")))
sketch9.setExpression("Constraints[0]", "Params.sketch9_diameter")
pad9 = body.newObject("PartDesign::Pad", "Pad008")
pad9.Profile = sketch9
pad9.setExpression("Length", "Params.pad9_length")

doc.recompute()
